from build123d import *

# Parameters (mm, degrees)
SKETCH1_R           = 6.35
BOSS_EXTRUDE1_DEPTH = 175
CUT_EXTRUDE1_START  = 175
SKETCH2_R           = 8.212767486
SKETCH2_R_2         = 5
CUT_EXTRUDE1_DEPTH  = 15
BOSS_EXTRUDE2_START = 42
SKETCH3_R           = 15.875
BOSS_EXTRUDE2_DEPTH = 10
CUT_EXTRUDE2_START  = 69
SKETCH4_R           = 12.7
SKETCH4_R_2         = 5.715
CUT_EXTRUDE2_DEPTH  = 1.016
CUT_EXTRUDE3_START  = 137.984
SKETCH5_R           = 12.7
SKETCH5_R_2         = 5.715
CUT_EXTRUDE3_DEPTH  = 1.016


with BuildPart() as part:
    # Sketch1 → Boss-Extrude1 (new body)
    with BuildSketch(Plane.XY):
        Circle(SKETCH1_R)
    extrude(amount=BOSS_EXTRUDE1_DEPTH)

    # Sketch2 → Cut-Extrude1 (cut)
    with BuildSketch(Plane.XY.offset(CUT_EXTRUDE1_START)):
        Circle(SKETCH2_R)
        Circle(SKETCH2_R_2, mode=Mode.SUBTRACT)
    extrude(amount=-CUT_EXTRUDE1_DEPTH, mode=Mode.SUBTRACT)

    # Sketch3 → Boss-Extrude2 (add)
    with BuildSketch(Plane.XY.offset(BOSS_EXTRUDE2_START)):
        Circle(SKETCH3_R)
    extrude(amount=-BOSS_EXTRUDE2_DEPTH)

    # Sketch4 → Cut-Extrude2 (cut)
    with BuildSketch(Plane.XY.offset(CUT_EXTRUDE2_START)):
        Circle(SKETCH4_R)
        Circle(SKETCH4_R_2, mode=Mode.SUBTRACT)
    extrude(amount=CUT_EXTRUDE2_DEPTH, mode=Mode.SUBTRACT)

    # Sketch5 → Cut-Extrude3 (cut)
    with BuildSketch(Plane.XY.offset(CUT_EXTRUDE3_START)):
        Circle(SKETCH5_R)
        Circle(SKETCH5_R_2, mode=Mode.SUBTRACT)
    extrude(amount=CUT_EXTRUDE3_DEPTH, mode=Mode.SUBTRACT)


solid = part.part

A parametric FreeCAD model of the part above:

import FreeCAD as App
import Part
import Sketcher

V = App.Vector
Q = App.Units.Quantity

doc = App.newDocument("Part")
body = doc.addObject("PartDesign::Body", "Body")

sketch1 = body.newObject("Sketcher::SketchObject", "Sketch")
sketch1.AttachmentSupport = (doc.getObject("XY_Plane"), [""])
sketch1.MapMode = "FlatFace"
sketch1.addGeometry(Part.Circle(V(0, 0, 0), V(0, 0, 1), 6), False)
sketch1.addConstraint(Sketcher.Constraint("Coincident", 0, 3, -1, 1))
sketch1.addConstraint(Sketcher.Constraint("Diameter", 0, Q("0.5 in")))
pad1 = body.newObject("PartDesign::Pad", "Pad")
pad1.Profile = sketch1
pad1.Length = 175

sketch2 = body.newObject("Sketcher::SketchObject", "Sketch001")
sketch2.AttachmentSupport = (doc.getObject("XY_Plane"), [""])
sketch2.MapMode = "FlatFace"
sketch2.AttachmentOffset = App.Placement(V(0, 0, 175), App.Rotation())
sketch2.addGeometry(Part.Circle(V(0, 0, 0), V(0, 0, 1), 8), False)
sketch2.addGeometry(Part.Circle(V(0, 0, 0), V(0, 0, 1), 5), False)
sketch2.addConstraint(Sketcher.Constraint("Coincident", 0, 3, -1, 1))
sketch2.addConstraint(Sketcher.Constraint("Coincident", 1, 3, -1, 1))
sketch2.addConstraint(Sketcher.Constraint("Diameter", 1, 10.0))
sketch2.addConstraint(Sketcher.Constraint("Diameter", 0, 16.425535))
pocket1 = body.newObject("PartDesign::Pocket", "Pocket")
pocket1.Profile = sketch2
pocket1.Length = 15

sketch3 = body.newObject("Sketcher::SketchObject", "Sketch002")
sketch3.AttachmentSupport = (doc.getObject("XY_Plane"), [""])
sketch3.MapMode = "FlatFace"
sketch3.AttachmentOffset = App.Placement(V(0, 0, 42), App.Rotation())
sketch3.addGeometry(Part.Circle(V(0, 0, 0), V(0, 0, 1), 16), False)
sketch3.addConstraint(Sketcher.Constraint("Coincident", 0, 3, -1, 1))
sketch3.addConstraint(Sketcher.Constraint("Diameter", 0, Q("1.25 in")))
pad2 = body.newObject("PartDesign::Pad", "Pad001")
pad2.Profile = sketch3
pad2.Length = 10
pad2.Reversed = True

sketch4 = body.newObject("Sketcher::SketchObject", "Sketch003")
sketch4.AttachmentSupport = (doc.getObject("XY_Plane"), [""])
sketch4.MapMode = "FlatFace"
sketch4.AttachmentOffset = App.Placement(V(0, 0, 69), App.Rotation())
sketch4.addGeometry(Part.Circle(V(0, 0, 0), V(0, 0, 1), 13), False)
sketch4.addGeometry(Part.Circle(V(0, 0, 0), V(0, 0, 1), 6), False)
sketch4.addConstraint(Sketcher.Constraint("Coincident", 0, 3, -1, 1))
sketch4.addConstraint(Sketcher.Constraint("Coincident", 1, 3, -1, 1))
sketch4.addConstraint(Sketcher.Constraint("Diameter", 0, Q("1 in")))
sketch4.addConstraint(Sketcher.Constraint("Diameter", 1, Q("0.45 in")))
pocket2 = body.newObject("PartDesign::Pocket", "Pocket001")
pocket2.Profile = sketch4
pocket2.Length = Q("0.04 in")
pocket2.Reversed = True

sketch5 = body.newObject("Sketcher::SketchObject", "Sketch004")
sketch5.AttachmentSupport = (doc.getObject("XY_Plane"), [""])
sketch5.MapMode = "FlatFace"
sketch5.AttachmentOffset = App.Placement(V(0, 0, 137.984), App.Rotation())
sketch5.addGeometry(Part.Circle(V(0, 0, 0), V(0, 0, 1), 13), False)
sketch5.addGeometry(Part.Circle(V(0, 0, 0), V(0, 0, 1), 6), False)
sketch5.addConstraint(Sketcher.Constraint("Coincident", 0, 3, -1, 1))
sketch5.addConstraint(Sketcher.Constraint("Coincident", 1, 3, -1, 1))
sketch5.addConstraint(Sketcher.Constraint("Diameter", 0, Q("1 in")))
sketch5.addConstraint(Sketcher.Constraint("Diameter", 1, Q("0.45 in")))
pocket3 = body.newObject("PartDesign::Pocket", "Pocket002")
pocket3.Profile = sketch5
pocket3.Length = Q("0.04 in")
pocket3.Reversed = True

doc.recompute()
